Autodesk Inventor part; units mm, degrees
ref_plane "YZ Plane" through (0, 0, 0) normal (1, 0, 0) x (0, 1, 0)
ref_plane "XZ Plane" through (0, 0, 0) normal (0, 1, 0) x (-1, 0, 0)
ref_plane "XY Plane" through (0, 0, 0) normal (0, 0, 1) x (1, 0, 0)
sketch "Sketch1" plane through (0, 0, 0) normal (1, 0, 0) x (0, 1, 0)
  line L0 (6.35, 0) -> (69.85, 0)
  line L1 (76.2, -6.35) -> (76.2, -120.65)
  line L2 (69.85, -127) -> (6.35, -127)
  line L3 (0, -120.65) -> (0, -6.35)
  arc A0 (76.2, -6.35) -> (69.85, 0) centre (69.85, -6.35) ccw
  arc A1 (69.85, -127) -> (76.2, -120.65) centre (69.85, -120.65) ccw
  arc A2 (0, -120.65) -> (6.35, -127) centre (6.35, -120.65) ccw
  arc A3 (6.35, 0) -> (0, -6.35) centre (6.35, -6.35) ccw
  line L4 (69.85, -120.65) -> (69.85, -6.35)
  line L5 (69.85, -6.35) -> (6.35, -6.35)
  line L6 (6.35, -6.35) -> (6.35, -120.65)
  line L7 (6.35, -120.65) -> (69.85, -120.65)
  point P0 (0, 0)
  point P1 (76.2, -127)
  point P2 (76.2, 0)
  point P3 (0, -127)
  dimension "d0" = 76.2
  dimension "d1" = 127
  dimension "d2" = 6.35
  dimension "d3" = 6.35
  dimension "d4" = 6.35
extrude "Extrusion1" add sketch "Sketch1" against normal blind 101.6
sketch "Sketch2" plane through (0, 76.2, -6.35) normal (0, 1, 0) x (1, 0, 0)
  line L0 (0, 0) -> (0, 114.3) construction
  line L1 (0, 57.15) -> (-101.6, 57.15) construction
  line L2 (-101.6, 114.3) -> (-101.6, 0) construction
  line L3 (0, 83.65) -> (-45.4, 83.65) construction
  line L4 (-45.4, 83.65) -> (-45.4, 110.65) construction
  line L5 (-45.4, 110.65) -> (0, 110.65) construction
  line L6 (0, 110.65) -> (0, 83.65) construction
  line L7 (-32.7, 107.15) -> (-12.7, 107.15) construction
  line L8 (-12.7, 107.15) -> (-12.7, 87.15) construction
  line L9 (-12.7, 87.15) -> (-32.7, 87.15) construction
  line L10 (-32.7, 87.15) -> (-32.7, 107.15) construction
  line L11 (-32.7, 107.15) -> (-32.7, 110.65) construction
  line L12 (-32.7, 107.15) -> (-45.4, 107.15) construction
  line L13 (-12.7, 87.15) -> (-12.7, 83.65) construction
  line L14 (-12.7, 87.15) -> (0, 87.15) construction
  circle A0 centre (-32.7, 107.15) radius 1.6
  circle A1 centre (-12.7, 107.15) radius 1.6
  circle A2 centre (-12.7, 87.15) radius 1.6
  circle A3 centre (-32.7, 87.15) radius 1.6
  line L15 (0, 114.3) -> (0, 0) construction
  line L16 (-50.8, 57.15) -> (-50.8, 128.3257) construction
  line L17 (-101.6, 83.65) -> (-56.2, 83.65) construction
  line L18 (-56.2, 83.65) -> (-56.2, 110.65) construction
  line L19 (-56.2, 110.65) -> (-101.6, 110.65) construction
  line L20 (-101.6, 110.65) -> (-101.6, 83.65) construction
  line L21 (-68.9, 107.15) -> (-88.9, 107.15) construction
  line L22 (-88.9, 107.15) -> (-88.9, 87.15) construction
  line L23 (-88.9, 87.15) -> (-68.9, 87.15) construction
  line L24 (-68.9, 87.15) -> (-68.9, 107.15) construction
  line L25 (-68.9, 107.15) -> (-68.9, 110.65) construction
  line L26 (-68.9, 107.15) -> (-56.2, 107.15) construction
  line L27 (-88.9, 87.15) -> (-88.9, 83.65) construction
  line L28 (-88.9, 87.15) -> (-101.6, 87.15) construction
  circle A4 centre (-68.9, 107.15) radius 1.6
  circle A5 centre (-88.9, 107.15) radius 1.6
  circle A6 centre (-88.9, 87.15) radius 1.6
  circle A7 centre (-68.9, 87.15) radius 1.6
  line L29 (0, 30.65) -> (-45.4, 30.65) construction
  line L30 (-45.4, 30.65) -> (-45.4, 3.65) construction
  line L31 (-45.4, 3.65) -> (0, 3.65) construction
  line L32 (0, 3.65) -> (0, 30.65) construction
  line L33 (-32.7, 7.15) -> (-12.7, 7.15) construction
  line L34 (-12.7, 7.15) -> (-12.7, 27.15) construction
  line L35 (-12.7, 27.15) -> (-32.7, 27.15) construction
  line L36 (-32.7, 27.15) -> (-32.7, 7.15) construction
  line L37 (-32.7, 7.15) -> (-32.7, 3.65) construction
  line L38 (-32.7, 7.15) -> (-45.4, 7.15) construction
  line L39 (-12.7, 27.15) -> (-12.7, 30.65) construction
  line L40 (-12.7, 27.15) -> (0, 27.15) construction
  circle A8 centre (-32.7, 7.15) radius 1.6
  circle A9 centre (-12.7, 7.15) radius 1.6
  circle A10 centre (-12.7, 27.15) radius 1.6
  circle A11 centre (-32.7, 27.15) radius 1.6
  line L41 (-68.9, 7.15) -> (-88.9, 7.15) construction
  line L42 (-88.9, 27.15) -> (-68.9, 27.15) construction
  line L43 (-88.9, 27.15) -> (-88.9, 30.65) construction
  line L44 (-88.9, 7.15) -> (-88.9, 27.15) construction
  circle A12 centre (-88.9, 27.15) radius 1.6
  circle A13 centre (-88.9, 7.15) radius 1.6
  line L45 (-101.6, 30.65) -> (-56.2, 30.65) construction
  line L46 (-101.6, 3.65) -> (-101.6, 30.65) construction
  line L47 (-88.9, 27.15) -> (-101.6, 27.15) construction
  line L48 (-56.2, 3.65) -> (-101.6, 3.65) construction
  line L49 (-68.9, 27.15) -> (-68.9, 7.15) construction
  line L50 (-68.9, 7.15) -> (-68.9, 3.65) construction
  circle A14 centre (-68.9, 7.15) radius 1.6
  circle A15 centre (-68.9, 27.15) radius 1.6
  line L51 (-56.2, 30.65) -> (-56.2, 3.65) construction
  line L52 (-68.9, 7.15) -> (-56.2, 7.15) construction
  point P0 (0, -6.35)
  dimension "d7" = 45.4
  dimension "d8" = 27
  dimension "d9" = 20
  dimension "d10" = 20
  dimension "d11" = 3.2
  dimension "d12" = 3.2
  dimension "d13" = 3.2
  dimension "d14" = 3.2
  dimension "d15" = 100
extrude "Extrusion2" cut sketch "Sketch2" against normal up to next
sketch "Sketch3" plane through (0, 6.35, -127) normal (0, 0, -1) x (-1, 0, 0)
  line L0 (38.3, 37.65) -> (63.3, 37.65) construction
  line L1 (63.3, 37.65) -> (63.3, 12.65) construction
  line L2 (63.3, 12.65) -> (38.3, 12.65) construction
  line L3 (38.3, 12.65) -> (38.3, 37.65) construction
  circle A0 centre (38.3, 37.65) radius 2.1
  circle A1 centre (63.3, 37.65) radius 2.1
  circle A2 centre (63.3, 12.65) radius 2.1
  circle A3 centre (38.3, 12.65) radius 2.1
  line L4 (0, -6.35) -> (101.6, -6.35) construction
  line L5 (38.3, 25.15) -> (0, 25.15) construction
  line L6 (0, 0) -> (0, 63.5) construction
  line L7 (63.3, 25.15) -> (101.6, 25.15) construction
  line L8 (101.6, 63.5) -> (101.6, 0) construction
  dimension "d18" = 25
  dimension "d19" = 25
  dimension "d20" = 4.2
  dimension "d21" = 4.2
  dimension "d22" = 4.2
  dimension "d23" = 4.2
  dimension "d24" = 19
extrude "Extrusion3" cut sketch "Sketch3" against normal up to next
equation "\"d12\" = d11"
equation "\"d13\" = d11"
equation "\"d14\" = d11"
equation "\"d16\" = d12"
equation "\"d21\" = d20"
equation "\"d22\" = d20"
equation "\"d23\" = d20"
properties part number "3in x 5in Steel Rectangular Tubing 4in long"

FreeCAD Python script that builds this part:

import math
import FreeCAD as App
import Part
import Sketcher

V = App.Vector
Q = App.Units.Quantity

doc = App.newDocument("Part")
params = doc.addObject("Spreadsheet::Sheet", "Params")
for row, (alias, value) in enumerate([
    ("sketch1_radius", "0.25 in"),
    ("pad1_length", "4 in"),
], start=1):
    params.set(f"A{row}", alias)
    params.set(f"B{row}", "=" + value)
    params.setAlias(f"B{row}", alias)

body = doc.addObject("PartDesign::Body", "Body")

# Sketch on YZ plane
sketch1 = doc.addObject("Sketcher::SketchObject", "Sketch")
body.addObject(sketch1)
sketch1.AttachmentSupport = (doc.YZ_Plane, [""])
sketch1.MapMode = "FlatFace"
sketch1.addGeometry([
    Part.LineSegment(V(69.85, 0, 0), V(6.35, 0, 0)),  # 0
    Part.ArcOfCircle(Part.Circle(V(6.35, -6.35, 0), V(0, 0, 1), 6.35), math.radians(90), math.radians(180)),  # 1
    Part.LineSegment(V(0, -6.35, 0), V(0, -120.65, 0)),  # 2
    Part.ArcOfCircle(Part.Circle(V(6.35, -120.65, 0), V(0, 0, 1), 6.35), math.radians(180), math.radians(270)),  # 3
    Part.LineSegment(V(6.35, -127, 0), V(69.85, -127, 0)),  # 4
    Part.ArcOfCircle(Part.Circle(V(69.85, -120.65, 0), V(0, 0, 1), 6.35), math.radians(-90), math.radians(0)),  # 5
    Part.LineSegment(V(76.2, -120.65, 0), V(76.2, -6.35, 0)),  # 6
    Part.ArcOfCircle(Part.Circle(V(69.85, -6.35, 0), V(0, 0, 1), 6.35), math.radians(0), math.radians(90)),  # 7
    Part.LineSegment(V(69.85, -6.35, 0), V(69.85, -120.65, 0)),  # 8
    Part.LineSegment(V(69.85, -120.65, 0), V(6.35, -120.65, 0)),  # 9
    Part.LineSegment(V(6.35, -120.65, 0), V(6.35, -6.35, 0)),  # 10
    Part.LineSegment(V(6.35, -6.35, 0), V(69.85, -6.35, 0)),  # 11
], False)
sketch1.addConstraint([
    Sketcher.Constraint("Tangent", 0, 2, 1, 1),
    Sketcher.Constraint("Tangent", 1, 2, 2, 1),
    Sketcher.Constraint("Tangent", 2, 2, 3, 1),
    Sketcher.Constraint("Tangent", 3, 2, 4, 1),
    Sketcher.Constraint("Tangent", 4, 2, 5, 1),
    Sketcher.Constraint("Tangent", 5, 2, 6, 1),
    Sketcher.Constraint("Tangent", 6, 2, 7, 1),
    Sketcher.Constraint("Tangent", 7, 2, 0, 1),
    Sketcher.Constraint("Coincident", 8, 2, 9, 1),
    Sketcher.Constraint("Coincident", 9, 2, 10, 1),
    Sketcher.Constraint("Coincident", 10, 2, 11, 1),
    Sketcher.Constraint("Coincident", 11, 2, 8, 1),
    Sketcher.Constraint("Horizontal", 0),
    Sketcher.Constraint("Vertical", 2),
    Sketcher.Constraint("Horizontal", 4),
    Sketcher.Constraint("Vertical", 6),
    Sketcher.Constraint("Vertical", 8),
    Sketcher.Constraint("Horizontal", 9),
    Sketcher.Constraint("Vertical", 10),
    Sketcher.Constraint("Horizontal", 11),
    Sketcher.Constraint("Coincident", 8, 2, 5, 3),
    Sketcher.Constraint("Coincident", 9, 2, 3, 3),
    Sketcher.Constraint("Coincident", 10, 2, 1, 3),
    Sketcher.Constraint("Equal", 5, 7),
    Sketcher.Constraint("PointOnObject", 0, 2, -1),
    Sketcher.Constraint("PointOnObject", 1, 2, -2),
    Sketcher.Constraint("Radius", 1, Q("0.25 in")),
    Sketcher.Constraint("DistanceY", 3, 2, -1, 1, Q("5 in")),
    Sketcher.Constraint("DistanceX", -1, 1, 5, 2, Q("3 in")),
])
sketch1.setExpression("Constraints[26]", "Params.sketch1_radius")
pad1 = doc.addObject("PartDesign::Pad", "Pad")
body.addObject(pad1)
pad1.Profile = sketch1
pad1.setExpression("Length", "Params.pad1_length")
pad1.Reversed = True

# Sketch on XZ plane
sketch2 = doc.addObject("Sketcher::SketchObject", "Sketch001")
body.addObject(sketch2)
sketch2.AttachmentSupport = (doc.XZ_Plane, [""])
sketch2.MapMode = "FlatFace"
sketch2.AttachmentOffset = App.Placement(V(0, 0, -3 * 25.4), App.Rotation())
sketch2.addGeometry([
    Part.Circle(V(-32.7, -113.5, 0), V(0, 0, 1), 1.6),  # 0
    Part.Circle(V(-12.7, -113.5, 0), V(0, 0, 1), 1.6),  # 1
    Part.Circle(V(-12.7, -93.5, 0), V(0, 0, 1), 1.6),  # 2
    Part.Circle(V(-32.7, -93.5, 0), V(0, 0, 1), 1.6),  # 3
    Part.Circle(V(-68.9, -113.5, 0), V(0, 0, 1), 1.6),  # 4
    Part.Circle(V(-88.9, -113.5, 0), V(0, 0, 1), 1.6),  # 5
    Part.Circle(V(-88.9, -93.5, 0), V(0, 0, 1), 1.6),  # 6
    Part.Circle(V(-68.9, -93.5, 0), V(0, 0, 1), 1.6),  # 7
    Part.Circle(V(-32.7, -13.5, 0), V(0, 0, 1), 1.6),  # 8
    Part.Circle(V(-12.7, -13.5, 0), V(0, 0, 1), 1.6),  # 9
    Part.Circle(V(-12.7, -33.5, 0), V(0, 0, 1), 1.6),  # 10
    Part.Circle(V(-32.7, -33.5, 0), V(0, 0, 1), 1.6),  # 11
    Part.Circle(V(-88.9, -33.5, 0), V(0, 0, 1), 1.6),  # 12
    Part.Circle(V(-88.9, -13.5, 0), V(0, 0, 1), 1.6),  # 13
    Part.Circle(V(-68.9, -13.5, 0), V(0, 0, 1), 1.6),  # 14
    Part.Circle(V(-68.9, -33.5, 0), V(0, 0, 1), 1.6),  # 15
], False)
sketch2.addConstraint([
    Sketcher.Constraint("Equal", 0, 1),
    Sketcher.Constraint("Equal", 1, 2),
    Sketcher.Constraint("Equal", 2, 3),
    Sketcher.Constraint("Equal", 3, 4),
    Sketcher.Constraint("Equal", 4, 5),
    Sketcher.Constraint("Equal", 5, 6),
    Sketcher.Constraint("Equal", 6, 7),
    Sketcher.Constraint("Equal", 7, 8),
    Sketcher.Constraint("Equal", 8, 9),
    Sketcher.Constraint("Equal", 9, 10),
    Sketcher.Constraint("Equal", 10, 11),
    Sketcher.Constraint("Equal", 11, 12),
    Sketcher.Constraint("Equal", 12, 13),
    Sketcher.Constraint("Equal", 13, 14),
    Sketcher.Constraint("Equal", 14, 15),
    Sketcher.Constraint("Horizontal", 0, 3, 1, 3),
    Sketcher.Constraint("Horizontal", 2, 3, 3, 3),
    Sketcher.Constraint("Horizontal", 1, 3, 4, 3),
    Sketcher.Constraint("Horizontal", 4, 3, 5, 3),
    Sketcher.Constraint("Horizontal", 3, 3, 6, 3),
    Sketcher.Constraint("Horizontal", 6, 3, 7, 3),
    Sketcher.Constraint("Horizontal", 8, 3, 9, 3),
    Sketcher.Constraint("Horizontal", 10, 3, 11, 3),
    Sketcher.Constraint("Horizontal", 11, 3, 12, 3),
    Sketcher.Constraint("Horizontal", 9, 3, 13, 3),
    Sketcher.Constraint("Horizontal", 13, 3, 14, 3),
    Sketcher.Constraint("Horizontal", 12, 3, 15, 3),
    Sketcher.Constraint("Vertical", 1, 3, 2, 3),
    Sketcher.Constraint("Vertical", 0, 3, 3, 3),
    Sketcher.Constraint("Vertical", 5, 3, 6, 3),
    Sketcher.Constraint("Vertical", 4, 3, 7, 3),
    Sketcher.Constraint("Vertical", 3, 3, 8, 3),
    Sketcher.Constraint("Vertical", 2, 3, 9, 3),
    Sketcher.Constraint("Vertical", 9, 3, 10, 3),
    Sketcher.Constraint("Vertical", 8, 3, 11, 3),
    Sketcher.Constraint("Vertical", 6, 3, 12, 3),
    Sketcher.Constraint("Vertical", 12, 3, 13, 3),
    Sketcher.Constraint("Vertical", 7, 3, 14, 3),
    Sketcher.Constraint("Vertical", 14, 3, 15, 3),
    Sketcher.Constraint("Diameter", 0, 3.2),
    Sketcher.Constraint("DistanceX", 5, 3, 1, 3, Q("3 in")),
    Sketcher.Constraint("DistanceY", 0, 3, 8, 3, Q("3.937 in")),
    Sketcher.Constraint("DistanceX", 1, 3, -1, 1, Q("0.5 in")),
    Sketcher.Constraint("DistanceX", 0, 3, 1, 3, Q("0.7874 in")),
    Sketcher.Constraint("DistanceY", 1, 3, 2, 3, Q("0.7874 in")),
    Sketcher.Constraint("DistanceX", 5, 3, 4, 3, Q("0.7874 in")),
    Sketcher.Constraint("DistanceY", 10, 3, 9, 3, Q("0.7874 in")),
    Sketcher.Constraint("DistanceY", 0, 3, -1, 1, Q("4.4685 in")),
])
pocket1 = doc.addObject("PartDesign::Pocket", "Pocket")
body.addObject(pocket1)
pocket1.Profile = sketch2
pocket1.Type = "UpToFirst"
pocket1.Reversed = True

# Sketch on XY plane
sketch3 = doc.addObject("Sketcher::SketchObject", "Sketch002")
body.addObject(sketch3)
sketch3.AttachmentSupport = (doc.XY_Plane, [""])
sketch3.MapMode = "FlatFace"
sketch3.AttachmentOffset = App.Placement(V(0, 0, -5 * 25.4), App.Rotation())
sketch3.addGeometry([
    Part.Circle(V(-38.3, 44, 0), V(0, 0, 1), 2.1),
    Part.Circle(V(-63.3, 44, 0), V(0, 0, 1), 2.1),
    Part.Circle(V(-63.3, 19, 0), V(0, 0, 1), 2.1),
    Part.Circle(V(-38.3, 19, 0), V(0, 0, 1), 2.1),
], False)
sketch3.addConstraint([
    Sketcher.Constraint("Equal", 0, 1),
    Sketcher.Constraint("Equal", 1, 2),
    Sketcher.Constraint("Equal", 2, 3),
    Sketcher.Constraint("Horizontal", 0, 3, 1, 3),
    Sketcher.Constraint("Horizontal", 2, 3, 3, 3),
    Sketcher.Constraint("Vertical", 1, 3, 2, 3),
    Sketcher.Constraint("Vertical", 0, 3, 3, 3),
    Sketcher.Constraint("Diameter", 0, 4.2),
    Sketcher.Constraint("DistanceY", -1, 1, 2, 3, 19.0),
    Sketcher.Constraint("DistanceX", 1, 3, 0, 3, 25.0),
    Sketcher.Constraint("DistanceY", 2, 3, 1, 3, 25.0),
    Sketcher.Constraint("DistanceX", 0, 3, -1, 1, 38.3),
])
pocket2 = doc.addObject("PartDesign::Pocket", "Pocket001")
body.addObject(pocket2)
pocket2.Profile = sketch3
pocket2.Type = "UpToFirst"
pocket2.Reversed = True

doc.recompute()
